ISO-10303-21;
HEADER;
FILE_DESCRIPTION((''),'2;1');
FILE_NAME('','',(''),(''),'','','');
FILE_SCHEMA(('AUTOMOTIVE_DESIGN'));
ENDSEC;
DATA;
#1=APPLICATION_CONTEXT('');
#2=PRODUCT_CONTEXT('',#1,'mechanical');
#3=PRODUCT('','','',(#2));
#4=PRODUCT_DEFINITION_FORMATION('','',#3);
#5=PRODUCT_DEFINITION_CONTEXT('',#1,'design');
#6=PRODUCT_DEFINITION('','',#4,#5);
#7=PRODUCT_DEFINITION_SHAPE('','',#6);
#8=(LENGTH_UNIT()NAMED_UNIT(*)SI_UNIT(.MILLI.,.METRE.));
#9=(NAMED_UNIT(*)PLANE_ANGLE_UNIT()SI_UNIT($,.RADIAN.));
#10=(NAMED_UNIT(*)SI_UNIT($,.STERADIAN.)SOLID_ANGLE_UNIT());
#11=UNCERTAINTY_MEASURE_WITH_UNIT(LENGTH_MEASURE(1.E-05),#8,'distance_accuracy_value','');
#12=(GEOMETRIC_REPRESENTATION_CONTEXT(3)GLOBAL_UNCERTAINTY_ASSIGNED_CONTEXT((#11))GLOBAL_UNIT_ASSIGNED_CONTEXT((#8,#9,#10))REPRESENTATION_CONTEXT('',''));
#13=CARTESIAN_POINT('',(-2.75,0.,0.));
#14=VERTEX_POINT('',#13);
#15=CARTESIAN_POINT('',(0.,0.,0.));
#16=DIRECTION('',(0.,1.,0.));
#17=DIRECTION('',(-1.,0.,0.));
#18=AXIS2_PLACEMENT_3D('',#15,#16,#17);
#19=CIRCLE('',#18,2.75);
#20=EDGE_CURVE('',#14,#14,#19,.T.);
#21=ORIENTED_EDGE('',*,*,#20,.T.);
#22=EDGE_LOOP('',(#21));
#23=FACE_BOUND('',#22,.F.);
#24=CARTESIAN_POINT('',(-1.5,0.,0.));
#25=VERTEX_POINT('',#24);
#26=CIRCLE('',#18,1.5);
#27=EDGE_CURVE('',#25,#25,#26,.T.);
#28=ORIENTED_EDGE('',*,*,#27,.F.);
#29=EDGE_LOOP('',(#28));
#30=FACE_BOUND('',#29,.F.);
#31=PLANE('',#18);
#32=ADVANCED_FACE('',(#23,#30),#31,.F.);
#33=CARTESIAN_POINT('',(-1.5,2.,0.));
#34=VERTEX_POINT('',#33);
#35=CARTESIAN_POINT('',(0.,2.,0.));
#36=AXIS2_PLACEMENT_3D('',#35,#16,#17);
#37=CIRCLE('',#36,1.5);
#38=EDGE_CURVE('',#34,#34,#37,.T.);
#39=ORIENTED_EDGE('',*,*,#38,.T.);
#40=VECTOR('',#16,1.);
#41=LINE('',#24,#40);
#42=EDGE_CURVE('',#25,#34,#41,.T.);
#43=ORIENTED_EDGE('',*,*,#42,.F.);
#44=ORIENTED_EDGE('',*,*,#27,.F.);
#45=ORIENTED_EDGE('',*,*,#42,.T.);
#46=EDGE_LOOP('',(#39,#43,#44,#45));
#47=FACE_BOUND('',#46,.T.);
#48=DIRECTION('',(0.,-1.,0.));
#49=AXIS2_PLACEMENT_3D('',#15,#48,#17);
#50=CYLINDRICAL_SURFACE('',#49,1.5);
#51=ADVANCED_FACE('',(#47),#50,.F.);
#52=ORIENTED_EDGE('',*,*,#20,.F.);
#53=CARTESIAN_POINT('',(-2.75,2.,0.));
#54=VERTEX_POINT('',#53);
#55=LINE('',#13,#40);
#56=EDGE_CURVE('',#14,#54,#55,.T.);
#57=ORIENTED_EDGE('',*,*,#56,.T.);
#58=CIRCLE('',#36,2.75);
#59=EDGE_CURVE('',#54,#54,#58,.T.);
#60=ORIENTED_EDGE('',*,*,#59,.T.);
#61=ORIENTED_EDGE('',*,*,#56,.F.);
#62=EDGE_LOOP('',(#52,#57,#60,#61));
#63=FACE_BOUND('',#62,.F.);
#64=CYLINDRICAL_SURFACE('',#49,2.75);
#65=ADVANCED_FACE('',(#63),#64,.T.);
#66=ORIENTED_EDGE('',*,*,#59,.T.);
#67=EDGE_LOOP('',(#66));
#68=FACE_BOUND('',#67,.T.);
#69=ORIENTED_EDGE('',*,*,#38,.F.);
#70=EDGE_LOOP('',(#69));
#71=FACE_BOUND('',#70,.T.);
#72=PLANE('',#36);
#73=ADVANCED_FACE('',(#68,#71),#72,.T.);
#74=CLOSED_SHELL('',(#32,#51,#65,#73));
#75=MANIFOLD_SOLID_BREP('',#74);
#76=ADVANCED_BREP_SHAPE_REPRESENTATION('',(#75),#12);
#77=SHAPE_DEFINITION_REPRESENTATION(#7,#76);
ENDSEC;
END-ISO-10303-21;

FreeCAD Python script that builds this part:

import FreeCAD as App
import Part
import Sketcher
from FreeCAD import Vector
Q = App.Units.Quantity

doc = App.newDocument("Part")
body = doc.addObject("PartDesign::Body", "Body")

sketch1 = body.newObject("Sketcher::SketchObject", "Sketch")
sketch1.AttachmentSupport = (doc.getObject("XZ_Plane"), [""])
sketch1.MapMode = "FlatFace"
sketch1.addGeometry([
    Part.Circle(Vector(0, 0, 0), Vector(0, 0, 1), 2.8),
    Part.Circle(Vector(0, 0, 0), Vector(0, 0, 1), 1.5),
], False)
sketch1.addConstraint([
    Sketcher.Constraint("Coincident", 0, 3, -1, 1),
    Sketcher.Constraint("Coincident", 1, 3, -1, 1),
    Sketcher.Constraint("Diameter", 1, Q("3 mm")),
    Sketcher.Constraint("Diameter", 0, Q("5.5 mm")),
])
pad1 = body.newObject("PartDesign::Pad", "Pad")
pad1.Profile = sketch1
pad1.Length = 2
pad1.Reversed = True

doc.recompute()
